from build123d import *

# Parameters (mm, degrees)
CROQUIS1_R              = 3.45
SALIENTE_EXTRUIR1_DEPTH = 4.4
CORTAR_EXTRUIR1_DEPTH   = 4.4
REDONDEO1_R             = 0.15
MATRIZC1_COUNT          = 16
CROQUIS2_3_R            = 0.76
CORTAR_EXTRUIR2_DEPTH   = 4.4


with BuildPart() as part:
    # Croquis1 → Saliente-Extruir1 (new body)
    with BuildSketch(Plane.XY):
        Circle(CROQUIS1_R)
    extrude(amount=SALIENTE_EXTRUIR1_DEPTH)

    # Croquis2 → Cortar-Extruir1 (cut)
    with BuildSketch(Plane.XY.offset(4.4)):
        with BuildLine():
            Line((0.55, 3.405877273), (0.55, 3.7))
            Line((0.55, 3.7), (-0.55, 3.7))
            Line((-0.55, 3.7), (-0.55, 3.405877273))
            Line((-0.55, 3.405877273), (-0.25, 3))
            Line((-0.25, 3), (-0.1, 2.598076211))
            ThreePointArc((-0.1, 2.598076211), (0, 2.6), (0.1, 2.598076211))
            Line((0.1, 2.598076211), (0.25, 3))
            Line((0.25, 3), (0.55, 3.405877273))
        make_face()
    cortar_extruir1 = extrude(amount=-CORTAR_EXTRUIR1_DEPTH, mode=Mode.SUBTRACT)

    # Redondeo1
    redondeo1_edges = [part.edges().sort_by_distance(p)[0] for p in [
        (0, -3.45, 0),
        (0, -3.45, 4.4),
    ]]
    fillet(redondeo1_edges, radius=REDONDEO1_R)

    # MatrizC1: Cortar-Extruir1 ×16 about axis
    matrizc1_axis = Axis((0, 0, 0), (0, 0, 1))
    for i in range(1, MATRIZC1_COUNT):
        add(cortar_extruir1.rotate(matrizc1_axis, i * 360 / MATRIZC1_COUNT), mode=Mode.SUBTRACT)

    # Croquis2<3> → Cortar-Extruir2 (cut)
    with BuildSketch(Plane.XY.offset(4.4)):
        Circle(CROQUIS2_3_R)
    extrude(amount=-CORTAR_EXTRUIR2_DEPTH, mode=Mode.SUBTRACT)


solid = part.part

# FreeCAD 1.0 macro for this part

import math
import FreeCAD as App
import Part
import Sketcher


def edges_at(feature, points):
    """Names of the edges that pass closest to the given points."""
    edges = feature.Shape.Edges
    near = lambda p: min(range(len(edges)), key=lambda i: edges[i].distToShape(Part.Vertex(*p))[0])
    return sorted({f"Edge{near(p) + 1}" for p in points})

doc = App.newDocument("Part")
body = doc.addObject("PartDesign::Body", "Body")

# Sketch on XY plane
sketch1 = body.newObject("Sketcher::SketchObject", "Sketch")
sketch1.AttachmentSupport = (doc.getObject("XY_Plane"), [""])
sketch1.MapMode = "FlatFace"
sketch1.addGeometry(Part.Circle(App.Vector(0, 0, 0), App.Vector(0, 0, 1), 3.5), False)
sketch1.addConstraint([
    Sketcher.Constraint("Coincident", 0, 3, -1, 1),
    Sketcher.Constraint("Diameter", 0, 6.9),
])
pad1 = body.newObject("PartDesign::Pad", "Pad")
pad1.Profile = sketch1
pad1.Length = 4.4

# Sketch on XY plane
sketch2 = body.newObject("Sketcher::SketchObject", "Sketch001")
sketch2.AttachmentSupport = (doc.getObject("XY_Plane"), [""])
sketch2.MapMode = "FlatFace"
sketch2.AttachmentOffset = App.Placement(App.Vector(0, 0, 4.4), App.Rotation())
sketch2.addGeometry([
    Part.LineSegment(App.Vector(0.55, 3.41, 0), App.Vector(0.55, 3.7, 0)),  # 0
    Part.LineSegment(App.Vector(0.55, 3.7, 0), App.Vector(-0.55, 3.7, 0)),  # 1
    Part.LineSegment(App.Vector(-0.55, 3.7, 0), App.Vector(-0.55, 3.41, 0)),  # 2
    Part.LineSegment(App.Vector(-0.55, 3.41, 0), App.Vector(-0.25, 3, 0)),  # 3
    Part.LineSegment(App.Vector(-0.25, 3, 0), App.Vector(-0.1, 2.6, 0)),  # 4
    Part.ArcOfCircle(Part.Circle(App.Vector(0, 0, 0), App.Vector(0, 0, 1), 2.6), math.radians(87.8), math.radians(92.2)),  # 5
    Part.LineSegment(App.Vector(0.1, 2.6, 0), App.Vector(0.25, 3, 0)),  # 6
    Part.LineSegment(App.Vector(0.25, 3, 0), App.Vector(0.55, 3.41, 0)),  # 7
], False)
sketch2.addConstraint([
    Sketcher.Constraint("Coincident", 0, 2, 1, 1),
    Sketcher.Constraint("Coincident", 1, 2, 2, 1),
    Sketcher.Constraint("Coincident", 2, 2, 3, 1),
    Sketcher.Constraint("Coincident", 3, 2, 4, 1),
    Sketcher.Constraint("Coincident", 4, 2, 5, 2),
    Sketcher.Constraint("Coincident", 5, 1, 6, 1),
    Sketcher.Constraint("Coincident", 6, 2, 7, 1),
    Sketcher.Constraint("Coincident", 7, 2, 0, 1),
    Sketcher.Constraint("Vertical", 0),
    Sketcher.Constraint("Horizontal", 1),
    Sketcher.Constraint("Vertical", 2),
    Sketcher.Constraint("Coincident", 5, 3, -1, 1),
    Sketcher.Constraint("Symmetric", 3, 2, 6, 2, -2),
    Sketcher.Constraint("Symmetric", 2, 2, 7, 2, -2),
    Sketcher.Constraint("Horizontal", 4, 2, 5, 1),
    Sketcher.Constraint("Radius", 5, 2.6),
    Sketcher.Constraint("DistanceX", 1, 2, 1, 1, 1.1),
    Sketcher.Constraint("DistanceY", -1, 1, 3, 2, 3.0),
    Sketcher.Constraint("DistanceY", -1, 1, 0, 2, 3.7),
    Sketcher.Constraint("DistanceX", 4, 2, -1, 1, 0.1),
    Sketcher.Constraint("DistanceX", 2, 2, 3, 2, 0.3),
    Sketcher.Constraint("DistanceY", 4, 2, 2, 2, 0.807801),
])
pocket1 = body.newObject("PartDesign::Pocket", "Pocket")
pocket1.Profile = sketch2
pocket1.Length = 4.4
doc.recompute()

fillet = body.newObject("PartDesign::Fillet", "Fillet")
fillet.Base = (pocket1, edges_at(pocket1, [(0, -3.45, 0), (0, -3.45, 4.4)]))
fillet.Radius = 0.15
doc.recompute()

polarpattern = body.newObject("PartDesign::PolarPattern", "PolarPattern")
polarpattern.Originals = [pocket1]
polarpattern.Axis = (doc.getObject("Z_Axis"), [""])
polarpattern.Angle = 360
polarpattern.Occurrences = 16
body.Tip = polarpattern

# Sketch on XY plane
sketch3 = body.newObject("Sketcher::SketchObject", "Sketch002")
sketch3.AttachmentSupport = (doc.getObject("XY_Plane"), [""])
sketch3.MapMode = "FlatFace"
sketch3.AttachmentOffset = App.Placement(App.Vector(0, 0, 4.4), App.Rotation())
sketch3.addGeometry(Part.Circle(App.Vector(0, 0, 0), App.Vector(0, 0, 1), 0.8), False)
sketch3.addConstraint([
    Sketcher.Constraint("Coincident", 0, 3, -1, 1),
    Sketcher.Constraint("Diameter", 0, 1.52),
])
pocket2 = body.newObject("PartDesign::Pocket", "Pocket001")
pocket2.Profile = sketch3
pocket2.Length = 4.4

doc.recompute()
